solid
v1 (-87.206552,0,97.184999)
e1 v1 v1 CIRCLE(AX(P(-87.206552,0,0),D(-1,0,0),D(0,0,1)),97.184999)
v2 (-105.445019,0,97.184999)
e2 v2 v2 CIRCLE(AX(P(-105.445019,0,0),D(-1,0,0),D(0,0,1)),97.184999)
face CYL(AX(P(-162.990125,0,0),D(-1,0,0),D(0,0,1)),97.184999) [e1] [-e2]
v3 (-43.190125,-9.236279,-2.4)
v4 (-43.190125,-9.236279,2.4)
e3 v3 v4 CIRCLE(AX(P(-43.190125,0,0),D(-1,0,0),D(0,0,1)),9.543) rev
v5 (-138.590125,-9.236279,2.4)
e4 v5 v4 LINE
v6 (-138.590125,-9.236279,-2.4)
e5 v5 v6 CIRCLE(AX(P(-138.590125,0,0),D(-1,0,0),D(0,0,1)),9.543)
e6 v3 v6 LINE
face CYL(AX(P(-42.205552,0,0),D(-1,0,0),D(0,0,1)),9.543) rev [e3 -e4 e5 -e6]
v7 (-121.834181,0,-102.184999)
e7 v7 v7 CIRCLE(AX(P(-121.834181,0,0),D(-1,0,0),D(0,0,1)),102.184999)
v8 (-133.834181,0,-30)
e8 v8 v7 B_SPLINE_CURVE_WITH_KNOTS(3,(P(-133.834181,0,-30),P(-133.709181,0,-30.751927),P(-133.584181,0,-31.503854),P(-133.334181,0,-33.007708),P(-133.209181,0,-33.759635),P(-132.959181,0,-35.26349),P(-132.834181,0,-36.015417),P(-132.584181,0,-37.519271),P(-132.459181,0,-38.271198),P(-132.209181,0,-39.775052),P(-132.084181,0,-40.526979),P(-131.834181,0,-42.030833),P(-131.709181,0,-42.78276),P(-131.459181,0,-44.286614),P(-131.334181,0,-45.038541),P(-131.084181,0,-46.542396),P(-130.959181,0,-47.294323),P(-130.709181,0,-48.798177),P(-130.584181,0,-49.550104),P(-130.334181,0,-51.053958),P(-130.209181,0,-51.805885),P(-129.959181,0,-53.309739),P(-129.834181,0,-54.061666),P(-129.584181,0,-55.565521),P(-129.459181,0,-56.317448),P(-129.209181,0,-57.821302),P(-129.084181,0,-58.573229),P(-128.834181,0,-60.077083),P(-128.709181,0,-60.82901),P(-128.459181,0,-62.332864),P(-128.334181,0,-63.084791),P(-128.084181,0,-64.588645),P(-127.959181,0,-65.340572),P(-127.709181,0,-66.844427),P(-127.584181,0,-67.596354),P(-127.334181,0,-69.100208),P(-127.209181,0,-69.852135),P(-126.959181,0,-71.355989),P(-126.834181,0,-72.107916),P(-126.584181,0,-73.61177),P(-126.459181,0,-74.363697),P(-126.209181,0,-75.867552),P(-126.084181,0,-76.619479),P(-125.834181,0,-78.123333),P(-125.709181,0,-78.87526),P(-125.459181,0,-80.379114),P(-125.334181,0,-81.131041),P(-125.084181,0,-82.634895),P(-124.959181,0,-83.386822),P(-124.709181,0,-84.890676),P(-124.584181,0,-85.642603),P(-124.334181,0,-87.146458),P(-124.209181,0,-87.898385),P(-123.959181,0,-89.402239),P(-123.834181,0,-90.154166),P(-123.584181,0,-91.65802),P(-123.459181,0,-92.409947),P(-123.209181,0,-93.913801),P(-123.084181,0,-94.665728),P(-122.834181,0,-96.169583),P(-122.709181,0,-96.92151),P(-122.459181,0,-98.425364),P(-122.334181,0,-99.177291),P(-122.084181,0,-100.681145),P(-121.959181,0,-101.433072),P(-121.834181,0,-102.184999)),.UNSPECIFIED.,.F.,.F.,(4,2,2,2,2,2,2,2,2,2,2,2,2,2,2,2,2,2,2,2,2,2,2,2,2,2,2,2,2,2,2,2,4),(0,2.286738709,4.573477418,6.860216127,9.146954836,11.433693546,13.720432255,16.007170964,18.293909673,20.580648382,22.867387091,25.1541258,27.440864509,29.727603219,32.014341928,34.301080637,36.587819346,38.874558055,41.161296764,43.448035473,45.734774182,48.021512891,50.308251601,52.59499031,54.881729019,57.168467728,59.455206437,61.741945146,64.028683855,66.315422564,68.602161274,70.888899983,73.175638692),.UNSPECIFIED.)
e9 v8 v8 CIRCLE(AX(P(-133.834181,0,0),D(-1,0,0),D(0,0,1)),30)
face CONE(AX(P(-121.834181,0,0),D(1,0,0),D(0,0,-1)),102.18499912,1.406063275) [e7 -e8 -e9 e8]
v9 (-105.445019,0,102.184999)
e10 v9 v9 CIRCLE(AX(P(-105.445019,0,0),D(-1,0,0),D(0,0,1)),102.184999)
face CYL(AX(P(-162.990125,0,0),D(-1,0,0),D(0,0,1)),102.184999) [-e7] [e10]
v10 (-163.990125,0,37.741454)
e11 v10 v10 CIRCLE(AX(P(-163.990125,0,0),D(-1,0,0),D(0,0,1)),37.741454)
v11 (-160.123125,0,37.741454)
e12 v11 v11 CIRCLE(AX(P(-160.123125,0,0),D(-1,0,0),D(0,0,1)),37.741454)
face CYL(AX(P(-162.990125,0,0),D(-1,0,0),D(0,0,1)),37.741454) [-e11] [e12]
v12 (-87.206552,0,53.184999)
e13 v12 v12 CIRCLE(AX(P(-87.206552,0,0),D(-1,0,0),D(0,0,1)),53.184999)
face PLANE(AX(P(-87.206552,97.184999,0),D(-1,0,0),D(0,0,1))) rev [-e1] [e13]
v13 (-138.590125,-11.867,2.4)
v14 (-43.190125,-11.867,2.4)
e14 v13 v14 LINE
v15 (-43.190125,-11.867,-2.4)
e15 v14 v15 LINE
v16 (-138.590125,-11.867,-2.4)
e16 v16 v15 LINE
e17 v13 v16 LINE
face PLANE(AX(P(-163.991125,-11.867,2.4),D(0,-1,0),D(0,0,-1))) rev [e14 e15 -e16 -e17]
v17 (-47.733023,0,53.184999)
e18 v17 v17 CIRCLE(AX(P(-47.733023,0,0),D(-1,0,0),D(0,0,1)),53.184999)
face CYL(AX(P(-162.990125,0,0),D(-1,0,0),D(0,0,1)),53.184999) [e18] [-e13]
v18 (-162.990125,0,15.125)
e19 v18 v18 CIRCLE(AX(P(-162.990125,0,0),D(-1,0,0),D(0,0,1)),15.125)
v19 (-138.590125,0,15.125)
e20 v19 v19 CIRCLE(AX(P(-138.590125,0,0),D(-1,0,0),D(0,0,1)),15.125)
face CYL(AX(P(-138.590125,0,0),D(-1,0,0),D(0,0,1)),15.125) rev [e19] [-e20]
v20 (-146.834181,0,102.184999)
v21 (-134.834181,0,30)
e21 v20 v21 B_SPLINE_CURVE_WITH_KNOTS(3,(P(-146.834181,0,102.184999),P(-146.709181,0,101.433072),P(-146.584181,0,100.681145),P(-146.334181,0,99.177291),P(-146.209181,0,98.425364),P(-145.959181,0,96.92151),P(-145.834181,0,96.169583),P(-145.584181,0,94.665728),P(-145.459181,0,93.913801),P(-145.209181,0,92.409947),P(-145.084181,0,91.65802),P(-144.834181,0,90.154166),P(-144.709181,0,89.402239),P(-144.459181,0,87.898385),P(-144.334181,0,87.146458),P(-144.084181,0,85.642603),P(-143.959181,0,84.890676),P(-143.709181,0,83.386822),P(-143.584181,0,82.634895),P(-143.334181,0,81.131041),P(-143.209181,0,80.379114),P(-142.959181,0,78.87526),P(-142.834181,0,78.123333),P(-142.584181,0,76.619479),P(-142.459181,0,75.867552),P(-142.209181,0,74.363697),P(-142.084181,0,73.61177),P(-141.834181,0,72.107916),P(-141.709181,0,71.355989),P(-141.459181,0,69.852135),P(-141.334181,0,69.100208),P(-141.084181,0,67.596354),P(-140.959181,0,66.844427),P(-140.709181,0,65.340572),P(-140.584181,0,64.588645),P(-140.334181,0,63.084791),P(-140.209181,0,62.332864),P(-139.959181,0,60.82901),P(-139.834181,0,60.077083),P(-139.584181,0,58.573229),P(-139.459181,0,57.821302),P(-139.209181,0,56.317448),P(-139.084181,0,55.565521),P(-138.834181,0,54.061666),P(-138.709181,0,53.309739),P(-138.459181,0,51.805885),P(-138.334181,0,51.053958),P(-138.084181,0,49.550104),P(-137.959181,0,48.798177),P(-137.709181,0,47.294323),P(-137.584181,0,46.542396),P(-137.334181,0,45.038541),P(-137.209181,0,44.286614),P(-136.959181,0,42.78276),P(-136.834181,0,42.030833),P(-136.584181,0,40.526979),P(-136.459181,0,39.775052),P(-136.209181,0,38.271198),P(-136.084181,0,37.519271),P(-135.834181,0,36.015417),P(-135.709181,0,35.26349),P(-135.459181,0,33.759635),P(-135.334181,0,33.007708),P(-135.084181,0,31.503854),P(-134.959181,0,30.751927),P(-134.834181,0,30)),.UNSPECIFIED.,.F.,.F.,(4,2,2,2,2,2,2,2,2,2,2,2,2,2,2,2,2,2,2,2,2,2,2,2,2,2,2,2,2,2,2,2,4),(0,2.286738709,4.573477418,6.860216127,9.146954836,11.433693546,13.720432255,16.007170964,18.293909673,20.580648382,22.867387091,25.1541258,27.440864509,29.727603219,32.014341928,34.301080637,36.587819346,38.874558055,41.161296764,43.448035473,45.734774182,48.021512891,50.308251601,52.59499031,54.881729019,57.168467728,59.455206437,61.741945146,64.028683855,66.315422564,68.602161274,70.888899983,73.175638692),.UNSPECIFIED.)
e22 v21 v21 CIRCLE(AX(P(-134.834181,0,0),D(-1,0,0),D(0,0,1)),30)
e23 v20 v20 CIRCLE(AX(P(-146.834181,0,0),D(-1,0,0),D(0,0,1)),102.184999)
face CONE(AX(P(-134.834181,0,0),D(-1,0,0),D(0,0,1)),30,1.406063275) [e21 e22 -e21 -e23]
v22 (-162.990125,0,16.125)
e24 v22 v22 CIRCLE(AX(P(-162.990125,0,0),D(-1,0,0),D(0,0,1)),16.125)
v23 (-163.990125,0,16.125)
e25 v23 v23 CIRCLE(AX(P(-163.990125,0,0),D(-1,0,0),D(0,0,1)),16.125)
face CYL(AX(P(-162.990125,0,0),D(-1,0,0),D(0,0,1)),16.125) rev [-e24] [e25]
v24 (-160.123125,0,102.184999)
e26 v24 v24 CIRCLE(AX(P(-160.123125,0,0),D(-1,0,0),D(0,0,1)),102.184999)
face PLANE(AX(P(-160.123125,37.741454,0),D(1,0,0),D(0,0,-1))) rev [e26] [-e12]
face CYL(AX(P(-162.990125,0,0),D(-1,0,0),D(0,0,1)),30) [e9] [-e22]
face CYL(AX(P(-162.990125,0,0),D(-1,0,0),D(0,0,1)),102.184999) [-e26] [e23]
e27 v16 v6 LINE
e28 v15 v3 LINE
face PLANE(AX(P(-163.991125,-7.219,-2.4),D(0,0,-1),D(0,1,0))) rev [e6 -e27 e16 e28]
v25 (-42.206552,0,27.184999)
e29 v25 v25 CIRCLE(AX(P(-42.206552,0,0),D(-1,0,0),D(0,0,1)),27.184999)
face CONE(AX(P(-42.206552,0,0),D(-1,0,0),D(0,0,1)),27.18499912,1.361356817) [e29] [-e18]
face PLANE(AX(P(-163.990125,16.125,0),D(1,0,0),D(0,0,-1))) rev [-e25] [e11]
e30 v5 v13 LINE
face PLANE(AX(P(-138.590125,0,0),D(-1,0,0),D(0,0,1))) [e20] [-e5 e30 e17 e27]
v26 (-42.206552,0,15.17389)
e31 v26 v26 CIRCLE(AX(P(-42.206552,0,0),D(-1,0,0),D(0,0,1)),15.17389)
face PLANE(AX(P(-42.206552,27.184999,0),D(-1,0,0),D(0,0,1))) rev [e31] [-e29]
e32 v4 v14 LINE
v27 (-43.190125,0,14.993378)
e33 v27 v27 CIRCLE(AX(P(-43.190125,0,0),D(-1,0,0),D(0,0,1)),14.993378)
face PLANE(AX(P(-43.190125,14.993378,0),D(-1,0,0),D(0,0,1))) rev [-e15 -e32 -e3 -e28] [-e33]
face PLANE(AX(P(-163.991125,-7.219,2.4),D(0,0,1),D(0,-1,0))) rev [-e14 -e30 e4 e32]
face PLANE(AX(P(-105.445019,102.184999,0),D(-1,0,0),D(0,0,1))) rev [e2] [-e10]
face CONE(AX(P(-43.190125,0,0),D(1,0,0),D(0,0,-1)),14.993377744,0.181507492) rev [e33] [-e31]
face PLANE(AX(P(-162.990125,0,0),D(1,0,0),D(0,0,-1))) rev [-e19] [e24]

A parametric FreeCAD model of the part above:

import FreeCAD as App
import Part
import Sketcher
Q = App.Units.Quantity


def add_polygon(sketch, points):
    """Adds a closed chain of lines whose ends are joined by coincident constraints."""
    first, n = sketch.GeometryCount, len(points)
    for a, b in zip(points, points[1:] + points[:1]):
        sketch.addGeometry(Part.LineSegment(App.Vector(*a, 0), App.Vector(*b, 0)), False)
    for i in range(n):
        sketch.addConstraint(Sketcher.Constraint("Coincident", first + i, 2, first + (i + 1) % n, 1))

doc = App.newDocument("Part")
params = doc.addObject("Spreadsheet::Sheet", "Params")
for row, (alias, value) in enumerate([
    ("sketch1_width", "1 mm"),
    ("sketch1_height", "44 mm"),
    ("sketch1_height2", "5 mm"),
    ("sketch1_length", "1 mm"),
    ("sketch1_width2", "119.8 mm"),
    ("revolution_angle", "360 deg"),
    ("sketch2_diameter", "30.25 mm"),
    ("pocket1_length", "24.4 mm"),
    ("sketch4_height", "4.8 mm"),
], start=1):
    params.set(f"A{row}", alias)
    params.set(f"B{row}", "=" + value)
    params.setAlias(f"B{row}", alias)

body = doc.addObject("PartDesign::Body", "Body")

# Sketch on XY plane
sketch1 = doc.addObject("Sketcher::SketchObject", "Sketch")
body.addObject(sketch1)
sketch1.AttachmentSupport = (doc.XY_Plane, [""])
sketch1.MapMode = "FlatFace"
add_polygon(sketch1, [(-162.990125, 16.125), (-162.990125, 0), (-43.190125, 0), (-43.190125, 14.993378), (-42.206552, 15.17389), (-42.206552, 27.184999), (-47.733023, 53.184999), (-87.206552, 53.184999), (-87.206552, 97.184999), (-105.445019, 97.184999), (-105.445019, 102.184999), (-121.834181, 102.184999), (-133.834181, 30), (-134.834181, 30), (-146.834181, 102.184999), (-160.123125, 102.184999), (-160.123125, 37.741454), (-163.990125, 37.741454), (-163.990125, 16.125)])  # lines 0-18
sketch1.addConstraint([
    Sketcher.Constraint("Vertical", 0),
    Sketcher.Constraint("Horizontal", 1),
    Sketcher.Constraint("Vertical", 2),
    Sketcher.Constraint("Vertical", 4),
    Sketcher.Constraint("Horizontal", 6),
    Sketcher.Constraint("Vertical", 7),
    Sketcher.Constraint("Horizontal", 8),
    Sketcher.Constraint("Vertical", 9),
    Sketcher.Constraint("Horizontal", 10),
    Sketcher.Constraint("Horizontal", 12),
    Sketcher.Constraint("Horizontal", 14),
    Sketcher.Constraint("Vertical", 15),
    Sketcher.Constraint("Horizontal", 16),
    Sketcher.Constraint("Vertical", 17),
    Sketcher.Constraint("Horizontal", 18),
    Sketcher.Constraint("PointOnObject", 0, 2, -1),
    Sketcher.Constraint("Horizontal", 10, 2, 13, 2),
    Sketcher.Constraint("Equal", 12, 18),
    Sketcher.Constraint("Equal", 11, 13),
    Sketcher.Constraint("DistanceX", 12, 2, 12, 1, Q("1 mm")),
    Sketcher.Constraint("DistanceY", 7, 1, 7, 2, Q("44 mm")),
    Sketcher.Constraint("DistanceY", 9, 1, 9, 2, Q("5 mm")),
    Sketcher.Constraint("Angle", 5, Q("102 deg")),
    Sketcher.Constraint("Distance", 3, Q("1 mm")),
    Sketcher.Constraint("DistanceX", 1, 1, 1, 2, Q("119.8 mm")),
    Sketcher.Constraint("DistanceY", -1, 1, 11, 2, Q("30 mm")),
    Sketcher.Constraint("DistanceY", 4, 2, 5, 2, Q("26 mm")),
    Sketcher.Constraint("DistanceX", 6, 2, 4, 2, Q("45 mm")),
    Sketcher.Constraint("DistanceX", 11, 2, 10, 2, Q("12 mm")),
    Sketcher.Constraint("DistanceX", 16, 2, 16, 1, Q("3.867 mm")),
    Sketcher.Constraint("DistanceY", 0, 2, 0, 1, Q("16.125 mm")),
    Sketcher.Constraint("DistanceY", -1, 1, 4, 2, Q("27.184999 mm")),
    Sketcher.Constraint("DistanceX", 10, 2, 10, 1, Q("16.389162 mm")),
    Sketcher.Constraint("DistanceY", 4, 1, 4, 2, Q("12.011109 mm")),
    Sketcher.Constraint("DistanceX", 8, 2, 8, 1, Q("18.238467 mm")),
    Sketcher.Constraint("DistanceX", 14, 2, 14, 1, Q("13.288944 mm")),
    Sketcher.Constraint("DistanceY", 15, 2, 15, 1, Q("64.443545 mm")),
    Sketcher.Constraint("DistanceX", 8, 2, -1, 1, Q("105.445019 mm")),
])
sketch1.setExpression("Constraints[38]", "Params.sketch1_width")
sketch1.setExpression("Constraints[39]", "Params.sketch1_height")
sketch1.setExpression("Constraints[40]", "Params.sketch1_height2")
sketch1.setExpression("Constraints[42]", "Params.sketch1_length")
sketch1.setExpression("Constraints[43]", "Params.sketch1_width2")
revolution = doc.addObject("PartDesign::Revolution", "Revolution")
body.addObject(revolution)
revolution.Profile = sketch1
revolution.ReferenceAxis = (sketch1, ["H_Axis"])
revolution.setExpression("Angle", "Params.revolution_angle")

# Sketch on YZ plane
sketch2 = doc.addObject("Sketcher::SketchObject", "Sketch001")
body.addObject(sketch2)
sketch2.AttachmentSupport = (doc.YZ_Plane, [""])
sketch2.MapMode = "FlatFace"
sketch2.AttachmentOffset = App.Placement(App.Vector(0, 0, -162.990125), App.Rotation())
sketch2.addGeometry(Part.Circle(App.Vector(0, 0, 0), App.Vector(0, 0, 1), 15.125), False)
sketch2.addConstraint([
    Sketcher.Constraint("Coincident", 0, 3, -1, 1),
    Sketcher.Constraint("Diameter", 0, Q("30.25 mm")),
])
sketch2.setExpression("Constraints[1]", "Params.sketch2_diameter")
pocket1 = doc.addObject("PartDesign::Pocket", "Pocket")
body.addObject(pocket1)
pocket1.Profile = sketch2
pocket1.setExpression("Length", "Params.pocket1_length")
pocket1.Reversed = True

# Sketch on YZ plane
sketch3 = doc.addObject("Sketcher::SketchObject", "Sketch002")
body.addObject(sketch3)
sketch3.AttachmentSupport = (doc.YZ_Plane, [""])
sketch3.MapMode = "FlatFace"
sketch3.AttachmentOffset = App.Placement(App.Vector(0, 0, -138.590125), App.Rotation())
sketch3.addGeometry(Part.Circle(App.Vector(0, 0, 0), App.Vector(0, 0, 1), 9.543), False)
sketch3.addConstraint([
    Sketcher.Constraint("Coincident", 0, 3, -1, 1),
    Sketcher.Constraint("Diameter", 0, Q("19.086 mm")),
])
pocket2 = doc.addObject("PartDesign::Pocket", "Pocket001")
body.addObject(pocket2)
pocket2.Profile = sketch3
pocket2.Type = "UpToFirst"
pocket2.Reversed = True

# Sketch on YZ plane
sketch4 = doc.addObject("Sketcher::SketchObject", "Sketch003")
body.addObject(sketch4)
sketch4.AttachmentSupport = (doc.YZ_Plane, [""])
sketch4.MapMode = "FlatFace"
sketch4.AttachmentOffset = App.Placement(App.Vector(0, 0, -43.190125), App.Rotation())
add_polygon(sketch4, [(-7.219, 2.4), (-11.867, 2.4), (-11.867, -2.4), (-7.219, -2.4)])  # lines 0-3
sketch4.addConstraint([
    Sketcher.Constraint("Horizontal", 0),
    Sketcher.Constraint("Vertical", 1),
    Sketcher.Constraint("Horizontal", 2),
    Sketcher.Constraint("Vertical", 3),
    Sketcher.Constraint("DistanceY", 1, 2, 1, 1, Q("4.8 mm")),
    Sketcher.Constraint("DistanceY", -1, 1, 0, 2, Q("2.4 mm")),
    Sketcher.Constraint("DistanceX", 0, 2, 0, 1, Q("4.648 mm")),
    Sketcher.Constraint("DistanceX", 0, 2, -1, 1, Q("11.867 mm")),
])
sketch4.setExpression("Constraints[8]", "Params.sketch4_height")
pocket3 = doc.addObject("PartDesign::Pocket", "Pocket002")
body.addObject(pocket3)
pocket3.Profile = sketch4
pocket3.Type = "UpToFirst"

doc.recompute()
